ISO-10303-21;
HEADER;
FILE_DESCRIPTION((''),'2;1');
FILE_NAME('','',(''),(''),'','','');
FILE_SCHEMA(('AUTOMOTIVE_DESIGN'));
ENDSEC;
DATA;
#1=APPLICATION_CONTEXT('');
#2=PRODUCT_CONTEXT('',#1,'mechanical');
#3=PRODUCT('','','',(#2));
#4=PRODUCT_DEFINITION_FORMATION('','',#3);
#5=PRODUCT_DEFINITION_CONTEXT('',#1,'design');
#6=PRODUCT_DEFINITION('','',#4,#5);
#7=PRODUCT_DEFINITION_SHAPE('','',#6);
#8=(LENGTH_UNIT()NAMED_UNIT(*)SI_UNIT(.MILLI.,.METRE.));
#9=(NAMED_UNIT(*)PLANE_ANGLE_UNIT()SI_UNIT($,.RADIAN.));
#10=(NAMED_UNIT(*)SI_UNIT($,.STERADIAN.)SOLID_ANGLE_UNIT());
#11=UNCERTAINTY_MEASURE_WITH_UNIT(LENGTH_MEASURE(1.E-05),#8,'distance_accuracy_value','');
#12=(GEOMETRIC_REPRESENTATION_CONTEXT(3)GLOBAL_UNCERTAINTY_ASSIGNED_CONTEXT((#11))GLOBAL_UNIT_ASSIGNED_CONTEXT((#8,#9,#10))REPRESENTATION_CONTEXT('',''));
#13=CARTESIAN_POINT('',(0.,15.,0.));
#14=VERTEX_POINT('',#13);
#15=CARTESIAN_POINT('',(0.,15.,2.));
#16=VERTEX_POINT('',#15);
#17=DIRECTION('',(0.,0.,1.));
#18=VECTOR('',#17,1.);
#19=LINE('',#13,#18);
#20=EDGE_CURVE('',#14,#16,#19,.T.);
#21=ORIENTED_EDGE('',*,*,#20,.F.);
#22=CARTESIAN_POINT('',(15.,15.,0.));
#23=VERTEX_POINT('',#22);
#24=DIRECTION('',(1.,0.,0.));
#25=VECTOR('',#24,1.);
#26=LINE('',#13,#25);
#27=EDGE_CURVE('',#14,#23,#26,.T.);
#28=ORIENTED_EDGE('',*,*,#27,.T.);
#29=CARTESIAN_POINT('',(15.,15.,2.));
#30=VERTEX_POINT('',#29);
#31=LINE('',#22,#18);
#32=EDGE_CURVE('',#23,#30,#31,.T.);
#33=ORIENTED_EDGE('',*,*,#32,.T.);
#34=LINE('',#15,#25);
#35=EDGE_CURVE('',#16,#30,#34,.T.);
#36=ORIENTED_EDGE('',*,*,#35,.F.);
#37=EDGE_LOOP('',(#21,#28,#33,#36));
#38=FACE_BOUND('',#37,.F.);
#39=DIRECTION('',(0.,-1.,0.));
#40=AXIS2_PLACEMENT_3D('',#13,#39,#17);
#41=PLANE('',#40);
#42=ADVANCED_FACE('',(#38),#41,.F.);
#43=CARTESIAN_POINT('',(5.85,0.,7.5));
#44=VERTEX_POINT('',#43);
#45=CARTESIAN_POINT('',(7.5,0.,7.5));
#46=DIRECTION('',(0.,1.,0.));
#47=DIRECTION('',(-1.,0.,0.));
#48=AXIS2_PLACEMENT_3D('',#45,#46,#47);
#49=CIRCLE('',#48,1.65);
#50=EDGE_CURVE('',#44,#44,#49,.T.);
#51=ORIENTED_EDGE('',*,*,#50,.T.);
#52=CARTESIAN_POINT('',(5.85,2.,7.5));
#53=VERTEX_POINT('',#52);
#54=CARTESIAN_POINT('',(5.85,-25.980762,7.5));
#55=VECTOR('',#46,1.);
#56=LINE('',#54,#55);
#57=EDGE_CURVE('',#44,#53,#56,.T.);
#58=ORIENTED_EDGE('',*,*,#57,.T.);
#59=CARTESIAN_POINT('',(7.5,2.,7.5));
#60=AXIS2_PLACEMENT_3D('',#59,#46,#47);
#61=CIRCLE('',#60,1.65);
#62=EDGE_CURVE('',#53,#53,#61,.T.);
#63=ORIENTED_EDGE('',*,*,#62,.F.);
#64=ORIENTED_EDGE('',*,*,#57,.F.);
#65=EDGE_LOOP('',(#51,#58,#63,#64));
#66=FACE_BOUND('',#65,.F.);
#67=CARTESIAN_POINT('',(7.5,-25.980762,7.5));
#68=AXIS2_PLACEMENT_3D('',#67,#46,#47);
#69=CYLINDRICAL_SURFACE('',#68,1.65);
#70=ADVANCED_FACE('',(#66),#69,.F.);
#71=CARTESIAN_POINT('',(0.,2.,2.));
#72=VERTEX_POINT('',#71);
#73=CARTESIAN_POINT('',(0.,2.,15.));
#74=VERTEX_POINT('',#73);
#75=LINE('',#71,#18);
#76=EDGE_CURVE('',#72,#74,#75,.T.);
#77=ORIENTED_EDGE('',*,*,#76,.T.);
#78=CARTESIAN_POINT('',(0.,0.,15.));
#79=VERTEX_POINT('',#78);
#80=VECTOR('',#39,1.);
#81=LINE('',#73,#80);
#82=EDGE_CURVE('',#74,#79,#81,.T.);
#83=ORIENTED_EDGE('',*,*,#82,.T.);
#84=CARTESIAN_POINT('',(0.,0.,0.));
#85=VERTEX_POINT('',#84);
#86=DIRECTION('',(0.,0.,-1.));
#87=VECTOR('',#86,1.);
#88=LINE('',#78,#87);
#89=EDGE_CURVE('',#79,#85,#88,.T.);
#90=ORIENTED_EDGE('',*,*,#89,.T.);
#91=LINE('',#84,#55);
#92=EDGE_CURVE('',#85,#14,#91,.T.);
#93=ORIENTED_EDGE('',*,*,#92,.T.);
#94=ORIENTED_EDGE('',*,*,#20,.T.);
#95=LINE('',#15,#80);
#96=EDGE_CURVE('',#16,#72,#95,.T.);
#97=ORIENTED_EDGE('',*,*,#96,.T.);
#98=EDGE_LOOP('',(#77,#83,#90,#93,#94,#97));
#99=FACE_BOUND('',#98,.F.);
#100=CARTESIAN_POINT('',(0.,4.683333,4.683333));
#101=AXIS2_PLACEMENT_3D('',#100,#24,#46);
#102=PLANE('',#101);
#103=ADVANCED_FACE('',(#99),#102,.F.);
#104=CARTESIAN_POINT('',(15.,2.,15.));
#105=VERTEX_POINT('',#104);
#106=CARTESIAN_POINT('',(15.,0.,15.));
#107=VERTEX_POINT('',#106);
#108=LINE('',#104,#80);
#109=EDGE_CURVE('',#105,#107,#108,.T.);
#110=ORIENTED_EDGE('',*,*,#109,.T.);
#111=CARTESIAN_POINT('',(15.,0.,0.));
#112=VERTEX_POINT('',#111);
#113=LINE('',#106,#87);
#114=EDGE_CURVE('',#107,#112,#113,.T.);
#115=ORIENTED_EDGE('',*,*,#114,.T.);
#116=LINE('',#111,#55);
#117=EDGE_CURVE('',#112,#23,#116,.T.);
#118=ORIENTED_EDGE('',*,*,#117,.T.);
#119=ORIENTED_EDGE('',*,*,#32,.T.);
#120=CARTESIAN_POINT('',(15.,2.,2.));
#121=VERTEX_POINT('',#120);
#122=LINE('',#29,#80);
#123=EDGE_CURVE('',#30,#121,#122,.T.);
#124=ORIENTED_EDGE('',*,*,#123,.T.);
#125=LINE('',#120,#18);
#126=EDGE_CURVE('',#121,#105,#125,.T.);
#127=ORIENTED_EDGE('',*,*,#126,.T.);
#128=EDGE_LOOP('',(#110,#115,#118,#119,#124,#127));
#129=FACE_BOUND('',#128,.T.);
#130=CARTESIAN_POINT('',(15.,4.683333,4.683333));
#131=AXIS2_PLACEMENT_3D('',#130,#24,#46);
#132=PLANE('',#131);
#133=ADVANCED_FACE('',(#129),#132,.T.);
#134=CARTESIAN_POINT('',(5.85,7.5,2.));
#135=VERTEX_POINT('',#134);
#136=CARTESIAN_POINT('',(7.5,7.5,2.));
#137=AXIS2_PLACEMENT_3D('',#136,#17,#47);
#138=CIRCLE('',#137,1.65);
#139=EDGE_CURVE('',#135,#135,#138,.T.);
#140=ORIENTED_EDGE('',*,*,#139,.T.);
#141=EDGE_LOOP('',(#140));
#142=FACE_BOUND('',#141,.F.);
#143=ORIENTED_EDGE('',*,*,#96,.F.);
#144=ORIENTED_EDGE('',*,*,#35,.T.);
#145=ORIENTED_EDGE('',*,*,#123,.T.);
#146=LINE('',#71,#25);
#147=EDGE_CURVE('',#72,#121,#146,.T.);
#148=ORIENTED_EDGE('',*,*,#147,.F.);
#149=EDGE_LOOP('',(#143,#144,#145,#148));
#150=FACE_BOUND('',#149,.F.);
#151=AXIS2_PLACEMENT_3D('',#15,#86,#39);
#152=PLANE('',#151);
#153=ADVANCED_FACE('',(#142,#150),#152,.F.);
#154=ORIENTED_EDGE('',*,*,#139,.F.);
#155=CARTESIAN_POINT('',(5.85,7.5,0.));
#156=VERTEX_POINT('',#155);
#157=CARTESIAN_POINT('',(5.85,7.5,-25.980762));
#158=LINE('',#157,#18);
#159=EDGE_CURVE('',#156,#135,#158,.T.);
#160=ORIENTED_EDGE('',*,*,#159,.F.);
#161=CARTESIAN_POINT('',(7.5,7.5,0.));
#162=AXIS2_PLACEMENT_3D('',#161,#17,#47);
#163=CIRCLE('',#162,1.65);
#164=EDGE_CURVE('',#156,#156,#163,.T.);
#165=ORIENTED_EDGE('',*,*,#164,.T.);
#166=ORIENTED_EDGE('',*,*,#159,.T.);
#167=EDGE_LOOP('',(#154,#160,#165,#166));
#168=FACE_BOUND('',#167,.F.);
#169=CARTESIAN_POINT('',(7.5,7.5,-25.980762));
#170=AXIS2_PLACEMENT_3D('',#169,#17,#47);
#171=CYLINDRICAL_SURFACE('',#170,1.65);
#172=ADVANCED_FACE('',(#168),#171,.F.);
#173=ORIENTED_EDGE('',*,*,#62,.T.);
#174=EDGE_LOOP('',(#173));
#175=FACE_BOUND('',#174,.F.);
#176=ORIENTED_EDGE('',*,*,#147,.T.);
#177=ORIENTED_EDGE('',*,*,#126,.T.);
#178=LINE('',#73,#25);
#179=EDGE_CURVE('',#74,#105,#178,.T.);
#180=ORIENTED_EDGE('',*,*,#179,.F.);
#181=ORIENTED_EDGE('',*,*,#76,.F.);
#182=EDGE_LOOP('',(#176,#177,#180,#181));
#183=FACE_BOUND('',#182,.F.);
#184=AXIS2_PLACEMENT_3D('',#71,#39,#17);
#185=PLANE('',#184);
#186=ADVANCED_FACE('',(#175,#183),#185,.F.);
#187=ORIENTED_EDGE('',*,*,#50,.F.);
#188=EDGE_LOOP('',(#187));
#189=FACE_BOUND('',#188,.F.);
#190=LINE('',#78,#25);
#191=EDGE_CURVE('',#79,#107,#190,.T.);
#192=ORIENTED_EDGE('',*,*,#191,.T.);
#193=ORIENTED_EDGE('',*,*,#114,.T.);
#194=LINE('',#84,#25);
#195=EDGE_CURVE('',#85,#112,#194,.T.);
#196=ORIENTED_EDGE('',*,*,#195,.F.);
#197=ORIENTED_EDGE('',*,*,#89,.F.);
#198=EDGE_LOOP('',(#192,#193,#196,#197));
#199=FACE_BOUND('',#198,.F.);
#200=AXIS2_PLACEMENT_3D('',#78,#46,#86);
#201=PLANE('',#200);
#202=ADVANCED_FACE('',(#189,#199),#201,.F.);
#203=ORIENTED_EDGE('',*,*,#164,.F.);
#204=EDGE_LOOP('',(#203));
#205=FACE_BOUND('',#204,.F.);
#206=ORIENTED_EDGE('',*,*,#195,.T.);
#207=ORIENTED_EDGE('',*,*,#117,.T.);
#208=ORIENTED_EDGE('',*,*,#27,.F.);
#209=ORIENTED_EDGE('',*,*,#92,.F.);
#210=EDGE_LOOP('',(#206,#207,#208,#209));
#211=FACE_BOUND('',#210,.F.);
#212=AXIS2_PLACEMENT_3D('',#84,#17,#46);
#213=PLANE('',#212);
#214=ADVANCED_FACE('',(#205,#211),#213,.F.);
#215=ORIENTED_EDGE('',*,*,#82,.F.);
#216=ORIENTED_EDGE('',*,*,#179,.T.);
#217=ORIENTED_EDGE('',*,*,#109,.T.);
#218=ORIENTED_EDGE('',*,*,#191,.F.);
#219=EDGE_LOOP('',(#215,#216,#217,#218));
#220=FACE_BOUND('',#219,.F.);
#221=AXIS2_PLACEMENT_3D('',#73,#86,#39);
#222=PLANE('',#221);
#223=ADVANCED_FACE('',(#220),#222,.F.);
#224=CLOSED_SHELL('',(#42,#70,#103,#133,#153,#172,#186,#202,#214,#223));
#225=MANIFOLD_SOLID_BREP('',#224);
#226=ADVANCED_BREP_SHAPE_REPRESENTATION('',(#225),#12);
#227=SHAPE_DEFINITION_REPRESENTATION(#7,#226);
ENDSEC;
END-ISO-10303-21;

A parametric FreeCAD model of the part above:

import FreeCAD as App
import Part
import Sketcher

V = App.Vector
Q = App.Units.Quantity


def add_polygon(sketch, points):
    """Adds a closed chain of lines whose ends are joined by coincident constraints."""
    first, n = sketch.GeometryCount, len(points)
    for a, b in zip(points, points[1:] + points[:1]):
        sketch.addGeometry(Part.LineSegment(App.Vector(*a, 0), App.Vector(*b, 0)), False)
    for i in range(n):
        sketch.addConstraint(Sketcher.Constraint("Coincident", first + i, 2, first + (i + 1) % n, 1))

doc = App.newDocument("Part")
body = doc.addObject("PartDesign::Body", "Body")

sketch1 = body.newObject("Sketcher::SketchObject", "Sketch")
sketch1.AttachmentSupport = (doc.getObject("YZ_Plane"), [""])
sketch1.MapMode = "FlatFace"
add_polygon(sketch1, [(0, 15), (0, 0), (15, 0), (15, 2), (2, 2), (2, 15)])
sketch1.addConstraint([
    Sketcher.Constraint("Vertical", 0),
    Sketcher.Constraint("Horizontal", 1),
    Sketcher.Constraint("Vertical", 2),
    Sketcher.Constraint("Horizontal", 3),
    Sketcher.Constraint("Vertical", 4),
    Sketcher.Constraint("Horizontal", 5),
    Sketcher.Constraint("Coincident", 0, 2, -1, 1),
    Sketcher.Constraint("Equal", 1, 0),
    Sketcher.Constraint("Equal", 5, 2),
    Sketcher.Constraint("DistanceX", 1, 1, 1, 2, Q("15 mm")),
    Sketcher.Constraint("DistanceX", 3, 2, 3, 1, Q("13 mm")),
])
pad1 = body.newObject("PartDesign::Pad", "Pad")
pad1.Profile = sketch1
pad1.Length = 15

sketch2 = body.newObject("Sketcher::SketchObject", "Sketch001")
sketch2.AttachmentSupport = (doc.getObject("XY_Plane"), [""])
sketch2.MapMode = "FlatFace"
sketch2.addGeometry(Part.Circle(V(7.5, 7.5, 0), V(0, 0, 1), 1.6), False)
sketch2.addConstraint([
    Sketcher.Constraint("Diameter", 0, Q("3.3 mm")),
    Sketcher.Constraint("DistanceX", -1, 1, 0, 3, Q("7.5 mm")),
    Sketcher.Constraint("DistanceY", -1, 1, 0, 3, Q("7.5 mm")),
])
doc.recompute()
hole = body.newObject("PartDesign::Hole", "Hole")
hole.Profile = sketch2
hole.ThreadType = "None"
hole.Diameter = 3.3
hole.DepthType = "ThroughAll"
hole.Reversed = True

sketch3 = body.newObject("Sketcher::SketchObject", "Sketch002")
sketch3.AttachmentSupport = (doc.getObject("XZ_Plane"), [""])
sketch3.MapMode = "FlatFace"
sketch3.addGeometry(Part.Circle(V(7.5, 7.5, 0), V(0, 0, 1), 1.6), False)
sketch3.addConstraint([
    Sketcher.Constraint("Diameter", 0, Q("3.3 mm")),
    Sketcher.Constraint("DistanceX", -1, 1, 0, 3, Q("7.5 mm")),
    Sketcher.Constraint("DistanceY", -1, 1, 0, 3, Q("7.5 mm")),
])
doc.recompute()
hole2 = body.newObject("PartDesign::Hole", "Hole001")
hole2.Profile = sketch3
hole2.ThreadType = "None"
hole2.Diameter = 3.3
hole2.DepthType = "ThroughAll"

doc.recompute()
